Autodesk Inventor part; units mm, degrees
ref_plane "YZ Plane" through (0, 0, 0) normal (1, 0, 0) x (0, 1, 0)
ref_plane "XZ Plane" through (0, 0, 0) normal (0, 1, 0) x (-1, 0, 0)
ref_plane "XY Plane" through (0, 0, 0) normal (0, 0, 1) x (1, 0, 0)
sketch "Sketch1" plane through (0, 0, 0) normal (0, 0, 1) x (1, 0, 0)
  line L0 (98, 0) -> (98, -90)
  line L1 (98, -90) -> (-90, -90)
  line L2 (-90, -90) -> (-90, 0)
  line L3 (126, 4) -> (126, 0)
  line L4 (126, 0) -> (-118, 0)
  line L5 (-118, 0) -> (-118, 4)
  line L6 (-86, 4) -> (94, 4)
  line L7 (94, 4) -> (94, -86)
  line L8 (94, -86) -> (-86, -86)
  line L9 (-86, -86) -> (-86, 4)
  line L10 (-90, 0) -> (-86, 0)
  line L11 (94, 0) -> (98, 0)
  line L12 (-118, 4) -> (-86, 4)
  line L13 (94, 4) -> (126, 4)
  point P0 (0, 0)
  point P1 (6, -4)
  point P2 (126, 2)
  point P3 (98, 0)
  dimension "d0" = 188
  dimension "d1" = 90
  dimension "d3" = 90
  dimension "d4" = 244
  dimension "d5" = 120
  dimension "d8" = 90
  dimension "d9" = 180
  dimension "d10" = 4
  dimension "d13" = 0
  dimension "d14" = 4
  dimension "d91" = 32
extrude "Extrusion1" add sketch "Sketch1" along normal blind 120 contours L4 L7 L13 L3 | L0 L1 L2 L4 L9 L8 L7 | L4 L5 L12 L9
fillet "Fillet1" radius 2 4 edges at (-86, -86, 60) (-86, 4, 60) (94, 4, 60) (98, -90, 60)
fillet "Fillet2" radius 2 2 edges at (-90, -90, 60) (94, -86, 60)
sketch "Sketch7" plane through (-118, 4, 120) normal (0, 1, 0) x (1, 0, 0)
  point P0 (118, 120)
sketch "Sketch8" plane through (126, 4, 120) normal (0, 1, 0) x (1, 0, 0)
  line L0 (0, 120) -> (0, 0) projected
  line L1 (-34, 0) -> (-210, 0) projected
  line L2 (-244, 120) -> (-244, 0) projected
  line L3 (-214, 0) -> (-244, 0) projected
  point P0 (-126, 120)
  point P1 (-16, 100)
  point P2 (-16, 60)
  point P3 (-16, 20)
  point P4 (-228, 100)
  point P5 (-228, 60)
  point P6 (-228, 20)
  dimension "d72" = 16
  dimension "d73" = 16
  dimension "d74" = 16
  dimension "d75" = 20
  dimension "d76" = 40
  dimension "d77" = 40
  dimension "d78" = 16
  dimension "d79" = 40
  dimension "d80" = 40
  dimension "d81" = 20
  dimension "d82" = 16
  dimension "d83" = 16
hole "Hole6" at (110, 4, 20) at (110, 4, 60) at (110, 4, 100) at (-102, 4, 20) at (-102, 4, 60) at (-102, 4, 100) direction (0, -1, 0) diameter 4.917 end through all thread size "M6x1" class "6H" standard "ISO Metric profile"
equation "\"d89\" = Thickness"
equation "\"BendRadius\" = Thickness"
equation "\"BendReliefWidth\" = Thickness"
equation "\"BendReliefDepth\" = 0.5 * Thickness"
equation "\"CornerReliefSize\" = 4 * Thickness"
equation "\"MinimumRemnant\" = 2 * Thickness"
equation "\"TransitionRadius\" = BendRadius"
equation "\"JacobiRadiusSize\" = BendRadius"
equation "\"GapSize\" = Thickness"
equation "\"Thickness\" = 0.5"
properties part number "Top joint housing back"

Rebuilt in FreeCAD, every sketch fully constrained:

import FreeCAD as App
import Part
import Sketcher


def edges_at(feature, points):
    """Names of the edges that pass closest to the given points."""
    edges = feature.Shape.Edges
    near = lambda p: min(range(len(edges)), key=lambda i: edges[i].distToShape(Part.Vertex(*p))[0])
    return sorted({f"Edge{near(p) + 1}" for p in points})

doc = App.newDocument("Part")
params = doc.addObject("Spreadsheet::Sheet", "Params")
for row, (alias, value) in enumerate([
    ("sketch1_width", "180 mm"),
    ("sketch1_width2", "32 mm"),
    ("sketch1_width3", "188 mm"),
    ("sketch1_height", "90 mm"),
    ("sketch1_height2", "4 mm"),
    ("pad1_length", "120 mm"),
    ("fillet_radius", "2 mm"),
    ("fillet2_radius", "2 mm"),
    ("hole_diameter", "4.917 mm"),
], start=1):
    params.set(f"A{row}", alias)
    params.set(f"B{row}", "=" + value)
    params.setAlias(f"B{row}", alias)

body = doc.addObject("PartDesign::Body", "Body")

# Sketch on XY plane
sketch1 = body.newObject("Sketcher::SketchObject", "Sketch")
sketch1.AttachmentSupport = (doc.getObject("XY_Plane"), [""])
sketch1.MapMode = "FlatFace"
sketch1.addGeometry([
    Part.LineSegment(App.Vector(94, 4, 0), App.Vector(94, -86, 0)),  # 0
    Part.LineSegment(App.Vector(94, -86, 0), App.Vector(-86, -86, 0)),  # 1
    Part.LineSegment(App.Vector(-86, -86, 0), App.Vector(-86, 4, 0)),  # 2
    Part.LineSegment(App.Vector(-86, 4, 0), App.Vector(-118, 4, 0)),  # 3
    Part.LineSegment(App.Vector(-118, 4, 0), App.Vector(-118, 0, 0)),  # 4
    Part.LineSegment(App.Vector(-118, 0, 0), App.Vector(-90, 0, 0)),  # 5
    Part.LineSegment(App.Vector(-90, 0, 0), App.Vector(-90, -90, 0)),  # 6
    Part.LineSegment(App.Vector(-90, -90, 0), App.Vector(98, -90, 0)),  # 7
    Part.LineSegment(App.Vector(98, -90, 0), App.Vector(98, 0, 0)),  # 8
    Part.LineSegment(App.Vector(98, 0, 0), App.Vector(126, 0, 0)),  # 9
    Part.LineSegment(App.Vector(126, 0, 0), App.Vector(126, 4, 0)),  # 10
    Part.LineSegment(App.Vector(126, 4, 0), App.Vector(94, 4, 0)),  # 11
], False)
sketch1.addConstraint([
    Sketcher.Constraint("Coincident", 0, 2, 1, 1),
    Sketcher.Constraint("Coincident", 1, 2, 2, 1),
    Sketcher.Constraint("Coincident", 2, 2, 3, 1),
    Sketcher.Constraint("Coincident", 3, 2, 4, 1),
    Sketcher.Constraint("Coincident", 4, 2, 5, 1),
    Sketcher.Constraint("Coincident", 5, 2, 6, 1),
    Sketcher.Constraint("Coincident", 6, 2, 7, 1),
    Sketcher.Constraint("Coincident", 7, 2, 8, 1),
    Sketcher.Constraint("Coincident", 8, 2, 9, 1),
    Sketcher.Constraint("Coincident", 9, 2, 10, 1),
    Sketcher.Constraint("Coincident", 10, 2, 11, 1),
    Sketcher.Constraint("Coincident", 11, 2, 0, 1),
    Sketcher.Constraint("Vertical", 0),
    Sketcher.Constraint("Horizontal", 1),
    Sketcher.Constraint("Vertical", 2),
    Sketcher.Constraint("Horizontal", 3),
    Sketcher.Constraint("Vertical", 4),
    Sketcher.Constraint("Horizontal", 5),
    Sketcher.Constraint("Vertical", 6),
    Sketcher.Constraint("Horizontal", 7),
    Sketcher.Constraint("Vertical", 8),
    Sketcher.Constraint("Horizontal", 9),
    Sketcher.Constraint("Vertical", 10),
    Sketcher.Constraint("Horizontal", 11),
    Sketcher.Constraint("PointOnObject", 4, 2, -1),
    Sketcher.Constraint("PointOnObject", 8, 2, -1),
    Sketcher.Constraint("Horizontal", 3, 2, 10, 2),
    Sketcher.Constraint("Equal", 5, 9),
    Sketcher.Constraint("Equal", 3, 11),
    Sketcher.Constraint("Equal", 2, 6),
    Sketcher.Constraint("DistanceX", 1, 2, 1, 1, 180.0),
    Sketcher.Constraint("DistanceX", 3, 2, 3, 1, 32.0),
    Sketcher.Constraint("DistanceX", 7, 1, 7, 2, 188.0),
    Sketcher.Constraint("DistanceY", 0, 2, 0, 1, 90.0),
    Sketcher.Constraint("DistanceY", 4, 2, 4, 1, 4.0),
    Sketcher.Constraint("DistanceX", 5, 2, -1, 1, 90.0),
])
sketch1.setExpression("Constraints[30]", "Params.sketch1_width")
sketch1.setExpression("Constraints[31]", "Params.sketch1_width2")
sketch1.setExpression("Constraints[32]", "Params.sketch1_width3")
sketch1.setExpression("Constraints[33]", "Params.sketch1_height")
sketch1.setExpression("Constraints[34]", "Params.sketch1_height2")
pad1 = body.newObject("PartDesign::Pad", "Pad")
pad1.Profile = sketch1
pad1.setExpression("Length", "Params.pad1_length")
doc.recompute()

fillet = body.newObject("PartDesign::Fillet", "Fillet")
fillet.Base = (pad1, edges_at(pad1, [
    (-86, -86, 60),
    (-86, 4, 60),
    (94, 4, 60),
    (98, -90, 60),
]))
fillet.setExpression("Radius", "Params.fillet_radius")
doc.recompute()

fillet2 = body.newObject("PartDesign::Fillet", "Fillet001")
fillet2.Base = (fillet, edges_at(fillet, [(-90, -90, 60), (94, -86, 60)]))
fillet2.setExpression("Radius", "Params.fillet2_radius")

# Sketch on XZ plane
sketch2 = body.newObject("Sketcher::SketchObject", "Sketch001")
sketch2.AttachmentSupport = (doc.getObject("XZ_Plane"), [""])
sketch2.MapMode = "FlatFace"
sketch2.AttachmentOffset = App.Placement(App.Vector(0, 0, -4), App.Rotation())
sketch2.addGeometry([
    Part.Circle(App.Vector(110, 20, 0), App.Vector(0, 0, 1), 2.5),  # 0
    Part.Circle(App.Vector(110, 60, 0), App.Vector(0, 0, 1), 2.5),  # 1
    Part.Circle(App.Vector(110, 100, 0), App.Vector(0, 0, 1), 2.5),  # 2
    Part.Circle(App.Vector(-102, 20, 0), App.Vector(0, 0, 1), 2.5),  # 3
    Part.Circle(App.Vector(-102, 60, 0), App.Vector(0, 0, 1), 2.5),  # 4
    Part.Circle(App.Vector(-102, 100, 0), App.Vector(0, 0, 1), 2.5),  # 5
], False)
sketch2.addConstraint([
    Sketcher.Constraint("Equal", 0, 1),
    Sketcher.Constraint("Equal", 1, 2),
    Sketcher.Constraint("Equal", 2, 3),
    Sketcher.Constraint("Equal", 3, 4),
    Sketcher.Constraint("Equal", 4, 5),
    Sketcher.Constraint("Horizontal", 0, 3, 3, 3),
    Sketcher.Constraint("Horizontal", 1, 3, 4, 3),
    Sketcher.Constraint("Horizontal", 2, 3, 5, 3),
    Sketcher.Constraint("Vertical", 0, 3, 1, 3),
    Sketcher.Constraint("Vertical", 1, 3, 2, 3),
    Sketcher.Constraint("Vertical", 3, 3, 4, 3),
    Sketcher.Constraint("Vertical", 4, 3, 5, 3),
    Sketcher.Constraint("Diameter", 0, 4.917),
    Sketcher.Constraint("DistanceX", -1, 1, 0, 3, 110.0),
    Sketcher.Constraint("DistanceY", -1, 1, 0, 3, 20.0),
    Sketcher.Constraint("DistanceY", -1, 1, 1, 3, 60.0),
    Sketcher.Constraint("DistanceY", -1, 1, 2, 3, 100.0),
    Sketcher.Constraint("DistanceX", 3, 3, -1, 1, 102.0),
])
doc.recompute()
hole = body.newObject("PartDesign::Hole", "Hole")
hole.Profile = sketch2
hole.ThreadType = "None"
hole.setExpression("Diameter", "Params.hole_diameter")
hole.DepthType = "ThroughAll"
hole.Reversed = True

doc.recompute()
